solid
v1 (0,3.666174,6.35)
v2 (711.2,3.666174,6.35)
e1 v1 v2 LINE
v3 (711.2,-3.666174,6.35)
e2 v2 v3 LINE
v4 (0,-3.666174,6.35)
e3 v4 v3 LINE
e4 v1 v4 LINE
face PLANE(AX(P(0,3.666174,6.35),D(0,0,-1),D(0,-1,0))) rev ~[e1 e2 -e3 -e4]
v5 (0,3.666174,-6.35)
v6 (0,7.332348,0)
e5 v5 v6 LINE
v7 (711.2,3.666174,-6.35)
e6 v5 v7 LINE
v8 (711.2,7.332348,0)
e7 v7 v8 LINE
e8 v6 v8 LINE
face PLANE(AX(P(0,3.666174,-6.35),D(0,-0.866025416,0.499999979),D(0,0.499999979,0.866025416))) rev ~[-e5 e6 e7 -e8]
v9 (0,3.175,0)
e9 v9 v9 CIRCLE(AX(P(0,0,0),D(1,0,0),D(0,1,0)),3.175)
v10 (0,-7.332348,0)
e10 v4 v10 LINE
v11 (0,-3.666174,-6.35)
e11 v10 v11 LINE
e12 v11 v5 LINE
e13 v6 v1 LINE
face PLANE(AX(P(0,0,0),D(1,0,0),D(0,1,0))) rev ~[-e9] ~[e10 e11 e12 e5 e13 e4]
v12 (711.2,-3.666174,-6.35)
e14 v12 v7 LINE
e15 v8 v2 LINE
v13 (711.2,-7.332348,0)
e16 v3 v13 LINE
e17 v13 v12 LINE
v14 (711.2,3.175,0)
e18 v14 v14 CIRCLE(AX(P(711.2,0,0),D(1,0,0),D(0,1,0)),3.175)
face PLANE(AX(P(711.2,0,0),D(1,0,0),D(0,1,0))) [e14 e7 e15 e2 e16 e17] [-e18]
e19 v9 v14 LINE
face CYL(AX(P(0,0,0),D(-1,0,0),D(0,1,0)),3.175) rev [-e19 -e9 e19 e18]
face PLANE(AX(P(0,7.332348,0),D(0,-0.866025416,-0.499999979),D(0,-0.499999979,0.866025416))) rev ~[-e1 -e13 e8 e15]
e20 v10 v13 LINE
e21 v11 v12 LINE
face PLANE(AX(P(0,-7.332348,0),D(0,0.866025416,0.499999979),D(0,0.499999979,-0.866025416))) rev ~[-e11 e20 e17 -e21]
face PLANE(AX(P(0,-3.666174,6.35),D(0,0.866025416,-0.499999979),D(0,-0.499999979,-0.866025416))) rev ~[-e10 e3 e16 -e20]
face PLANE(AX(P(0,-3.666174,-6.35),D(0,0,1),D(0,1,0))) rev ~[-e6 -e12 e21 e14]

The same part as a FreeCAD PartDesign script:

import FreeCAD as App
import Part
import Sketcher

V = App.Vector
Q = App.Units.Quantity


def add_polygon(sketch, points):
    """Adds a closed chain of lines whose ends are joined by coincident constraints."""
    first, n = sketch.GeometryCount, len(points)
    for a, b in zip(points, points[1:] + points[:1]):
        sketch.addGeometry(Part.LineSegment(App.Vector(*a, 0), App.Vector(*b, 0)), False)
    for i in range(n):
        sketch.addConstraint(Sketcher.Constraint("Coincident", first + i, 2, first + (i + 1) % n, 1))

doc = App.newDocument("Part")
params = doc.addObject("Spreadsheet::Sheet", "Params")
for row, (alias, value) in enumerate([
    ("sketch1_diameter", "0.25 in"),
    ("pad1_length", "28 in"),
], start=1):
    params.set(f"A{row}", alias)
    params.set(f"B{row}", "=" + value)
    params.setAlias(f"B{row}", alias)

body = doc.addObject("PartDesign::Body", "Body")

sketch1 = body.newObject("Sketcher::SketchObject", "Sketch")
sketch1.AttachmentSupport = (doc.getObject("YZ_Plane"), [""])
sketch1.MapMode = "FlatFace"
add_polygon(sketch1, [(3.666174, 6.35), (-3.666174, 6.35), (-7.332348, 0), (-3.666174, -6.35), (3.666174, -6.35), (7.332348, 0)])
sketch1.addGeometry(Part.Circle(V(0, 0, 0), V(0, 0, 1), 3.175), False)
sketch1.addConstraint(Sketcher.Constraint("Horizontal", 0))
sketch1.addConstraint(Sketcher.Constraint("Horizontal", 3))
sketch1.addConstraint(Sketcher.Constraint("Coincident", 6, 3, -1, 1))
sketch1.addConstraint(Sketcher.Constraint("Symmetric", 0, 2, 3, 2, -1, 1))
sketch1.addConstraint(Sketcher.Constraint("Symmetric", 1, 2, 4, 2, -1, 1))
sketch1.addConstraint(Sketcher.Constraint("PointOnObject", 1, 2, -1))
sketch1.addConstraint(Sketcher.Constraint("Parallel", 2, 5))
sketch1.addConstraint(Sketcher.Constraint("Vertical", 0, 2, 2, 2))
sketch1.addConstraint(Sketcher.Constraint("Diameter", 6, Q("0.25 in")))
sketch1.addConstraint(Sketcher.Constraint("Angle", 1, Q("-119.999999 deg")))
sketch1.addConstraint(Sketcher.Constraint("DistanceY", 2, 2, 0, 2, Q("0.5 in")))
sketch1.addConstraint(Sketcher.Constraint("DistanceX", 0, 2, 0, 1, 7.332348))
sketch1.setExpression("Constraints[14]", "Params.sketch1_diameter")
pad1 = body.newObject("PartDesign::Pad", "Pad")
pad1.Profile = sketch1
pad1.setExpression("Length", "Params.pad1_length")

doc.recompute()
